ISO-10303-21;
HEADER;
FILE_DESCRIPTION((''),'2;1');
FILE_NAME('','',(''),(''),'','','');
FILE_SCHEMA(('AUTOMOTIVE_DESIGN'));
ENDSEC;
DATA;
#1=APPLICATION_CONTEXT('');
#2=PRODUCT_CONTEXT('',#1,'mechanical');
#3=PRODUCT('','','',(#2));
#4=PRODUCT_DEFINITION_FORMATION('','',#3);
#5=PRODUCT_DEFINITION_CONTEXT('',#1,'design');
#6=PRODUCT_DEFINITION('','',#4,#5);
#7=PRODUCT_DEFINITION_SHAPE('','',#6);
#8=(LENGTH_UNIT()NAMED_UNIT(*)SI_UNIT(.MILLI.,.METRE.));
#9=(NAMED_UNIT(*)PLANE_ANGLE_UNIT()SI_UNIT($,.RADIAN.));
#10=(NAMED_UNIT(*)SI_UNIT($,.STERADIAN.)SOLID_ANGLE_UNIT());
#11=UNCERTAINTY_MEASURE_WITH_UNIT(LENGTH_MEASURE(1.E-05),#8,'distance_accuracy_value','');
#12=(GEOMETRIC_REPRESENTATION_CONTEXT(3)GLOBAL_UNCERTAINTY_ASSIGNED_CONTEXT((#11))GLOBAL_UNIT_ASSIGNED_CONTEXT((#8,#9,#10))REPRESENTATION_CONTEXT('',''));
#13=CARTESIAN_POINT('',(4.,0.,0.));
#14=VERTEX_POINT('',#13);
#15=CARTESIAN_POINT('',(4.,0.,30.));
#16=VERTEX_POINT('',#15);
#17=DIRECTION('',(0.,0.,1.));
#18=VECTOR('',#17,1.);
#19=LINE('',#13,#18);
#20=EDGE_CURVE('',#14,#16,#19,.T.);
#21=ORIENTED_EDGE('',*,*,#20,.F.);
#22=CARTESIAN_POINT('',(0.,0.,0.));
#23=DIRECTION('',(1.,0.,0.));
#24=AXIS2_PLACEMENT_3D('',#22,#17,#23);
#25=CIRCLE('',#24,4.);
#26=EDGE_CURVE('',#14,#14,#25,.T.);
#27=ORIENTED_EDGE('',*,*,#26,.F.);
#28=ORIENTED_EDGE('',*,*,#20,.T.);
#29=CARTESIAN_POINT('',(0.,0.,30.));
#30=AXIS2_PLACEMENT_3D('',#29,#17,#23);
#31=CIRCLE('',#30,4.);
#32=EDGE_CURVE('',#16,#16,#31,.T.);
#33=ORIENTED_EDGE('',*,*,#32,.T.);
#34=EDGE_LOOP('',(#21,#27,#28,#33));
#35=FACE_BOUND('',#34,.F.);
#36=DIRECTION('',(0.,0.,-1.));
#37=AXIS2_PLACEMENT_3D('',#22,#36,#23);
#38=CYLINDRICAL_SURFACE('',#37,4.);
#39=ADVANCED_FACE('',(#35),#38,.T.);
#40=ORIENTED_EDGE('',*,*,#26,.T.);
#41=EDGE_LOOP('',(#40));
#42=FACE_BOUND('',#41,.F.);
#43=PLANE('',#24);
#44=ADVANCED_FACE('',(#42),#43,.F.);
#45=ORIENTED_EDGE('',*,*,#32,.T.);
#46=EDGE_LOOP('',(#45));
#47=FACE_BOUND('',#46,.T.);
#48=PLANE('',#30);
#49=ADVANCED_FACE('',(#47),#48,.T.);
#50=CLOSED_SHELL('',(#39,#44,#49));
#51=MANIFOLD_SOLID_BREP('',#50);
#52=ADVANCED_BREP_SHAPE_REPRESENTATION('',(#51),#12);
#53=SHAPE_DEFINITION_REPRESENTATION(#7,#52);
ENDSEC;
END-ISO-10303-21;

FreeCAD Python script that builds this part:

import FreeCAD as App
import Part
import Sketcher
from FreeCAD import Vector
Q = App.Units.Quantity

doc = App.newDocument("Part")
body = doc.addObject("PartDesign::Body", "Body")

sketch1 = doc.addObject("Sketcher::SketchObject", "Sketch")
body.addObject(sketch1)
sketch1.AttachmentSupport = (doc.XY_Plane, [""])
sketch1.MapMode = "FlatFace"
sketch1.addGeometry(Part.Circle(Vector(0, 0, 0), Vector(0, 0, 1), 4), False)
sketch1.addConstraint([
    Sketcher.Constraint("Coincident", 0, 3, -1, 1),
    Sketcher.Constraint("Diameter", 0, Q("8 mm")),
])
pad1 = doc.addObject("PartDesign::Pad", "Pad")
body.addObject(pad1)
pad1.Profile = sketch1
pad1.Length = 30

doc.recompute()
